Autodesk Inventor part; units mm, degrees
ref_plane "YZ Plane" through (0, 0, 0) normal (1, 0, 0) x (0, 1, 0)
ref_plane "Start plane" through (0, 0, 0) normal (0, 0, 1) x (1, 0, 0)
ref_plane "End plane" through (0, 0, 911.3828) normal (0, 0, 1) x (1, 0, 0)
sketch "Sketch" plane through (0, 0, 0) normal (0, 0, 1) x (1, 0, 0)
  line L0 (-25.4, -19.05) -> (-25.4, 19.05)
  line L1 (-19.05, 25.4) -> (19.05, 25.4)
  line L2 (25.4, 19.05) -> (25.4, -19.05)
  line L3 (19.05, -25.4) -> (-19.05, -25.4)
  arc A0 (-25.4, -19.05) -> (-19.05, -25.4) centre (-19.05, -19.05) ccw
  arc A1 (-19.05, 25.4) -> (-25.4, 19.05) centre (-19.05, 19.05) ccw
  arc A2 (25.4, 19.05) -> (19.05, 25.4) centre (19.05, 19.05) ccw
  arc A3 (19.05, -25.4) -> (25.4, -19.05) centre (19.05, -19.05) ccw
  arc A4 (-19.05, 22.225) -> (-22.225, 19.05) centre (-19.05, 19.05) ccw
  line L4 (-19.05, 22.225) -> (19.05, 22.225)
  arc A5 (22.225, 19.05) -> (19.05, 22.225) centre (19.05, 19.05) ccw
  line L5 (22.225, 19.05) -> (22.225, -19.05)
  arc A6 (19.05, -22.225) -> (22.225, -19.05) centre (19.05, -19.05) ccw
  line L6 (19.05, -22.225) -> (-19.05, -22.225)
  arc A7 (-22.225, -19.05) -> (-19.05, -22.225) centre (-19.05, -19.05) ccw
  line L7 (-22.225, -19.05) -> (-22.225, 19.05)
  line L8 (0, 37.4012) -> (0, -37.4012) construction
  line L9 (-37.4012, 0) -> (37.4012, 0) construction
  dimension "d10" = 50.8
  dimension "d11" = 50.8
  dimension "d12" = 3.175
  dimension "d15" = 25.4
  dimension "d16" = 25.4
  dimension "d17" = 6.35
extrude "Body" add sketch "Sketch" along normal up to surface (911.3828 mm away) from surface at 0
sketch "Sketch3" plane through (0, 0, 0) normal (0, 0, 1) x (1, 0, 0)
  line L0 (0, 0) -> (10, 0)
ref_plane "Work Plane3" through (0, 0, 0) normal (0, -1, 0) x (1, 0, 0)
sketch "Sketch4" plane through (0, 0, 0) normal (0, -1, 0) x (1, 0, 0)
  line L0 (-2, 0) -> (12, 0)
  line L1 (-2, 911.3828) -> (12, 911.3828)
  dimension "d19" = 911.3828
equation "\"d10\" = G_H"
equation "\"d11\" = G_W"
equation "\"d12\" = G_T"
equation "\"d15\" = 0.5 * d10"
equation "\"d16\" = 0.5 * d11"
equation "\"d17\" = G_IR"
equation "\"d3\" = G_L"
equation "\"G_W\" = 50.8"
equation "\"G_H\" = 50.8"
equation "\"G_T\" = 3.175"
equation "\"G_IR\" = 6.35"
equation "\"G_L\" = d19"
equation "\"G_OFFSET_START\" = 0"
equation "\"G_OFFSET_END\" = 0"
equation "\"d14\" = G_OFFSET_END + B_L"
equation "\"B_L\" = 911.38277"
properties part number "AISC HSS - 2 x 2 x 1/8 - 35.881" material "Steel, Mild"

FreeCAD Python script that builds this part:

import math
import FreeCAD as App
import Part
import Sketcher
Q = App.Units.Quantity

doc = App.newDocument("Part")
params = doc.addObject("Spreadsheet::Sheet", "Params")
for row, (alias, value) in enumerate([
    ("sketch1_radius", "0.25 in"),
    ("sketch1_radius2", "0.125 in"),
    ("pad1_length", "911.3828 mm"),
], start=1):
    params.set(f"A{row}", alias)
    params.set(f"B{row}", "=" + value)
    params.setAlias(f"B{row}", alias)

body = doc.addObject("PartDesign::Body", "Body")

# Sketch on XY plane
sketch1 = body.newObject("Sketcher::SketchObject", "Sketch")
sketch1.AttachmentSupport = (doc.getObject("XY_Plane"), [""])
sketch1.MapMode = "FlatFace"
sketch1.addGeometry([
    Part.LineSegment(App.Vector(-25.4, 19.1, 0), App.Vector(-25.4, -19.1, 0)),  # 0
    Part.ArcOfCircle(Part.Circle(App.Vector(-19.1, -19.1, 0), App.Vector(0, 0, 1), 6.3), math.radians(180), math.radians(270)),  # 1
    Part.LineSegment(App.Vector(-19.1, -25.4, 0), App.Vector(19.1, -25.4, 0)),  # 2
    Part.ArcOfCircle(Part.Circle(App.Vector(19.1, -19.1, 0), App.Vector(0, 0, 1), 6.3), math.radians(-90), math.radians(0)),  # 3
    Part.LineSegment(App.Vector(25.4, -19.1, 0), App.Vector(25.4, 19.1, 0)),  # 4
    Part.ArcOfCircle(Part.Circle(App.Vector(19.1, 19.1, 0), App.Vector(0, 0, 1), 6.3), math.radians(0), math.radians(90)),  # 5
    Part.LineSegment(App.Vector(19.1, 25.4, 0), App.Vector(-19.1, 25.4, 0)),  # 6
    Part.ArcOfCircle(Part.Circle(App.Vector(-19.1, 19.1, 0), App.Vector(0, 0, 1), 6.3), math.radians(90), math.radians(180)),  # 7
    Part.ArcOfCircle(Part.Circle(App.Vector(-19.1, 19.1, 0), App.Vector(0, 0, 1), 3.2), math.radians(90), math.radians(180)),  # 8
    Part.LineSegment(App.Vector(-19.1, 22.2, 0), App.Vector(19.1, 22.2, 0)),  # 9
    Part.ArcOfCircle(Part.Circle(App.Vector(19.1, 19.1, 0), App.Vector(0, 0, 1), 3.2), math.radians(0), math.radians(90)),  # 10
    Part.LineSegment(App.Vector(22.2, 19.1, 0), App.Vector(22.2, -19.1, 0)),  # 11
    Part.ArcOfCircle(Part.Circle(App.Vector(19.1, -19.1, 0), App.Vector(0, 0, 1), 3.2), math.radians(-90), math.radians(0)),  # 12
    Part.LineSegment(App.Vector(19.1, -22.2, 0), App.Vector(-19.1, -22.2, 0)),  # 13
    Part.ArcOfCircle(Part.Circle(App.Vector(-19.1, -19.1, 0), App.Vector(0, 0, 1), 3.2), math.radians(180), math.radians(270)),  # 14
    Part.LineSegment(App.Vector(-22.2, -19.1, 0), App.Vector(-22.2, 19.1, 0)),  # 15
], False)
sketch1.addConstraint([
    Sketcher.Constraint("Tangent", 0, 2, 1, 1),
    Sketcher.Constraint("Tangent", 1, 2, 2, 1),
    Sketcher.Constraint("Tangent", 2, 2, 3, 1),
    Sketcher.Constraint("Tangent", 3, 2, 4, 1),
    Sketcher.Constraint("Tangent", 4, 2, 5, 1),
    Sketcher.Constraint("Tangent", 5, 2, 6, 1),
    Sketcher.Constraint("Tangent", 6, 2, 7, 1),
    Sketcher.Constraint("Tangent", 7, 2, 0, 1),
    Sketcher.Constraint("Tangent", 8, 1, 9, 1),
    Sketcher.Constraint("Tangent", 9, 2, 10, 2),
    Sketcher.Constraint("Tangent", 10, 1, 11, 1),
    Sketcher.Constraint("Tangent", 11, 2, 12, 2),
    Sketcher.Constraint("Tangent", 12, 1, 13, 1),
    Sketcher.Constraint("Tangent", 13, 2, 14, 2),
    Sketcher.Constraint("Tangent", 14, 1, 15, 1),
    Sketcher.Constraint("Tangent", 15, 2, 8, 2),
    Sketcher.Constraint("Vertical", 0),
    Sketcher.Constraint("Horizontal", 2),
    Sketcher.Constraint("Vertical", 4),
    Sketcher.Constraint("Horizontal", 6),
    Sketcher.Constraint("Horizontal", 9),
    Sketcher.Constraint("Vertical", 11),
    Sketcher.Constraint("Horizontal", 13),
    Sketcher.Constraint("Vertical", 15),
    Sketcher.Constraint("Coincident", 8, 3, 7, 3),
    Sketcher.Constraint("Coincident", 10, 3, 5, 3),
    Sketcher.Constraint("Coincident", 12, 3, 3, 3),
    Sketcher.Constraint("Equal", 1, 3),
    Sketcher.Constraint("Equal", 3, 5),
    Sketcher.Constraint("Equal", 5, 7),
    Sketcher.Constraint("Equal", 12, 14),
    Sketcher.Constraint("Symmetric", 1, 3, 5, 3, -1, 1),
    Sketcher.Constraint("Equal", 13, 0),
    Sketcher.Constraint("Radius", 1, Q("0.25 in")),
    Sketcher.Constraint("DistanceX", 0, 2, -1, 1, Q("1 in")),
    Sketcher.Constraint("Radius", 8, Q("0.125 in")),
])
sketch1.setExpression("Constraints[33]", "Params.sketch1_radius")
sketch1.setExpression("Constraints[35]", "Params.sketch1_radius2")
pad1 = body.newObject("PartDesign::Pad", "Pad")
pad1.Profile = sketch1
pad1.setExpression("Length", "Params.pad1_length")

doc.recompute()
